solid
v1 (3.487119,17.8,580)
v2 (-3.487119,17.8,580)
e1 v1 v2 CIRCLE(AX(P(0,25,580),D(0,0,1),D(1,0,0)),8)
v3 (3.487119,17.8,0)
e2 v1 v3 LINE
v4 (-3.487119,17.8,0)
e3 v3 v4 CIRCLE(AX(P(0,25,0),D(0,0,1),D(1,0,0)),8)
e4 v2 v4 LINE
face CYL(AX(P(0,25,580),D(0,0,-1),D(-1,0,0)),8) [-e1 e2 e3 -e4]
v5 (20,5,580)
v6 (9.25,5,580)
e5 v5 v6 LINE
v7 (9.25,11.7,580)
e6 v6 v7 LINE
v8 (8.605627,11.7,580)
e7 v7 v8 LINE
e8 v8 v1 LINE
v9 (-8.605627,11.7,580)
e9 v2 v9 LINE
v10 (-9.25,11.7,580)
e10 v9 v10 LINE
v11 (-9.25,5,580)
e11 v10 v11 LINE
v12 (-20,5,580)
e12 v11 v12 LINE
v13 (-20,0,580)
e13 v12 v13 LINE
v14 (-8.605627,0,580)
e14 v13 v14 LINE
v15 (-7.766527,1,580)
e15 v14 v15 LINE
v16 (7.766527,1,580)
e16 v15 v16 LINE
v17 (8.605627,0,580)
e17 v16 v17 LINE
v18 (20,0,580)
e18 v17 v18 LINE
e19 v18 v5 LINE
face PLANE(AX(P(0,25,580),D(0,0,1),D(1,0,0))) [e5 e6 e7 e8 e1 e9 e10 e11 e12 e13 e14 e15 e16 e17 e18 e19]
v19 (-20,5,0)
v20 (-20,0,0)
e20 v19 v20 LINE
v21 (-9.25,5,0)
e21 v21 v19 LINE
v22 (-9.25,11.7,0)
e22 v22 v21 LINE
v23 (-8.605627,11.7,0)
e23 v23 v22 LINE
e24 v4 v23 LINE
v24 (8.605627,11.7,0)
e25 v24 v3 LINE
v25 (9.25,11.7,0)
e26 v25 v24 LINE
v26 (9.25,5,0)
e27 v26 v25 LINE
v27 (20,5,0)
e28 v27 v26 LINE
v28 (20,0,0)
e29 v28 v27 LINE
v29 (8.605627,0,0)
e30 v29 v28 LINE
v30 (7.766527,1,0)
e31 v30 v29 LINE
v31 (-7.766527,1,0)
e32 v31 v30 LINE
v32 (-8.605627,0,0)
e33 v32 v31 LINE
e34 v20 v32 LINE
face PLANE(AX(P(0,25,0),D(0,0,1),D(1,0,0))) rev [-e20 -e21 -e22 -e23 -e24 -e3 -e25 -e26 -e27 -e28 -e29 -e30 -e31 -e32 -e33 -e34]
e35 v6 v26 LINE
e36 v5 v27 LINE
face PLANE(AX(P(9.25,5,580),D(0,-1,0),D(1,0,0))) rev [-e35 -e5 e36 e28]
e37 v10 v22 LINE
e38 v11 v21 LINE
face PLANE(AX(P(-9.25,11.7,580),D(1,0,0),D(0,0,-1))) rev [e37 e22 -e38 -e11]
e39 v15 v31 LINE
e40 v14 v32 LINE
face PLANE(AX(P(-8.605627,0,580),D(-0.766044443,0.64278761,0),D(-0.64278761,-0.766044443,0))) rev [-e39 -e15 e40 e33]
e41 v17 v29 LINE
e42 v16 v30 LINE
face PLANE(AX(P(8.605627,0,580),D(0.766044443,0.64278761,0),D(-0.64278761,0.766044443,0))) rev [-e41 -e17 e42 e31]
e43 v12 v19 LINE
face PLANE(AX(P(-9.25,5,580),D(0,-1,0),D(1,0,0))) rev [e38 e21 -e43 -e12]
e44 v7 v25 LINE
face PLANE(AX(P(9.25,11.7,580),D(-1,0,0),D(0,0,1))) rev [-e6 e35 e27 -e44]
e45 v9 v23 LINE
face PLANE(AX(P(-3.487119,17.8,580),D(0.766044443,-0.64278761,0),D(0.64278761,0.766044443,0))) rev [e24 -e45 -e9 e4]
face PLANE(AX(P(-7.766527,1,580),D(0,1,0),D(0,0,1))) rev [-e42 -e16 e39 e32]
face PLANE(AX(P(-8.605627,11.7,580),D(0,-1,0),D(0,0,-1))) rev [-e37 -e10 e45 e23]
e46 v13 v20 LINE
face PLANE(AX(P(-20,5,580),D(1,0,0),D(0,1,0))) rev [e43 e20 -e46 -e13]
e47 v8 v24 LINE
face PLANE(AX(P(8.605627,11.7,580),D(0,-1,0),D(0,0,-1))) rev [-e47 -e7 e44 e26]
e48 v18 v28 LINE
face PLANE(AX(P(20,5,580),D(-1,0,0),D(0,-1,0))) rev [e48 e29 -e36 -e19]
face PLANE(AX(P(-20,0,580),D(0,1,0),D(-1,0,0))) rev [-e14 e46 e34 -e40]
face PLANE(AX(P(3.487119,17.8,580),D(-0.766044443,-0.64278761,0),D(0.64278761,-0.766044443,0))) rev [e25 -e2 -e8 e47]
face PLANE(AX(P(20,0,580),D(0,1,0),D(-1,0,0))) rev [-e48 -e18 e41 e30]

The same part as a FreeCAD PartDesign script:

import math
import FreeCAD as App
import Part
import Sketcher
Q = App.Units.Quantity

doc = App.newDocument("Part")
body = doc.addObject("PartDesign::Body", "Body")

sketch1 = body.newObject("Sketcher::SketchObject", "Sketch")
sketch1.AttachmentSupport = (doc.getObject("XY_Plane"), [""])
sketch1.MapMode = "FlatFace"
sketch1.addGeometry(Part.LineSegment(App.Vector(-3.5, 17.8, 0), App.Vector(-8.6, 11.7, 0)), False)
sketch1.addGeometry(Part.LineSegment(App.Vector(-8.6, 11.7, 0), App.Vector(-9.2, 11.7, 0)), False)
sketch1.addGeometry(Part.LineSegment(App.Vector(-9.2, 11.7, 0), App.Vector(-9.2, 5, 0)), False)
sketch1.addGeometry(Part.LineSegment(App.Vector(-9.2, 5, 0), App.Vector(-20, 5, 0)), False)
sketch1.addGeometry(Part.LineSegment(App.Vector(-20, 5, 0), App.Vector(-20, 0, 0)), False)
sketch1.addGeometry(Part.LineSegment(App.Vector(-20, 0, 0), App.Vector(-8.6, 0, 0)), False)
sketch1.addGeometry(Part.LineSegment(App.Vector(-8.6, 0, 0), App.Vector(-7.8, 1, 0)), False)
sketch1.addGeometry(Part.LineSegment(App.Vector(-7.8, 1, 0), App.Vector(7.8, 1, 0)), False)
sketch1.addGeometry(Part.LineSegment(App.Vector(7.8, 1, 0), App.Vector(8.6, 0, 0)), False)
sketch1.addGeometry(Part.LineSegment(App.Vector(8.6, 0, 0), App.Vector(20, 0, 0)), False)
sketch1.addGeometry(Part.LineSegment(App.Vector(20, 0, 0), App.Vector(20, 5, 0)), False)
sketch1.addGeometry(Part.LineSegment(App.Vector(20, 5, 0), App.Vector(9.2, 5, 0)), False)
sketch1.addGeometry(Part.LineSegment(App.Vector(9.2, 5, 0), App.Vector(9.2, 11.7, 0)), False)
sketch1.addGeometry(Part.LineSegment(App.Vector(9.2, 11.7, 0), App.Vector(8.6, 11.7, 0)), False)
sketch1.addGeometry(Part.LineSegment(App.Vector(8.6, 11.7, 0), App.Vector(3.5, 17.8, 0)), False)
sketch1.addGeometry(Part.ArcOfCircle(Part.Circle(App.Vector(0, 25, 0), App.Vector(0, 0, 1), 8), math.radians(-64), math.radians(244)), False)
sketch1.addConstraint(Sketcher.Constraint("Coincident", 0, 2, 1, 1))
sketch1.addConstraint(Sketcher.Constraint("Coincident", 1, 2, 2, 1))
sketch1.addConstraint(Sketcher.Constraint("Coincident", 2, 2, 3, 1))
sketch1.addConstraint(Sketcher.Constraint("Coincident", 3, 2, 4, 1))
sketch1.addConstraint(Sketcher.Constraint("Coincident", 4, 2, 5, 1))
sketch1.addConstraint(Sketcher.Constraint("Coincident", 5, 2, 6, 1))
sketch1.addConstraint(Sketcher.Constraint("Coincident", 6, 2, 7, 1))
sketch1.addConstraint(Sketcher.Constraint("Coincident", 7, 2, 8, 1))
sketch1.addConstraint(Sketcher.Constraint("Coincident", 8, 2, 9, 1))
sketch1.addConstraint(Sketcher.Constraint("Coincident", 9, 2, 10, 1))
sketch1.addConstraint(Sketcher.Constraint("Coincident", 10, 2, 11, 1))
sketch1.addConstraint(Sketcher.Constraint("Coincident", 11, 2, 12, 1))
sketch1.addConstraint(Sketcher.Constraint("Coincident", 12, 2, 13, 1))
sketch1.addConstraint(Sketcher.Constraint("Coincident", 13, 2, 14, 1))
sketch1.addConstraint(Sketcher.Constraint("Coincident", 14, 2, 15, 1))
sketch1.addConstraint(Sketcher.Constraint("Coincident", 15, 2, 0, 1))
sketch1.addConstraint(Sketcher.Constraint("Horizontal", 1))
sketch1.addConstraint(Sketcher.Constraint("Vertical", 2))
sketch1.addConstraint(Sketcher.Constraint("Horizontal", 3))
sketch1.addConstraint(Sketcher.Constraint("Vertical", 4))
sketch1.addConstraint(Sketcher.Constraint("Horizontal", 5))
sketch1.addConstraint(Sketcher.Constraint("Horizontal", 7))
sketch1.addConstraint(Sketcher.Constraint("Horizontal", 9))
sketch1.addConstraint(Sketcher.Constraint("Vertical", 10))
sketch1.addConstraint(Sketcher.Constraint("Horizontal", 11))
sketch1.addConstraint(Sketcher.Constraint("Vertical", 12))
sketch1.addConstraint(Sketcher.Constraint("Horizontal", 13))
sketch1.addConstraint(Sketcher.Constraint("Symmetric", 5, 2, 8, 2, -1, 1))
sketch1.addConstraint(Sketcher.Constraint("Symmetric", 4, 2, 9, 2, -2))
sketch1.addConstraint(Sketcher.Constraint("Symmetric", 2, 2, 11, 2, -2))
sketch1.addConstraint(Sketcher.Constraint("Symmetric", 0, 2, 13, 2, -2))
sketch1.addConstraint(Sketcher.Constraint("Symmetric", 14, 2, 15, 2, -2))
sketch1.addConstraint(Sketcher.Constraint("Parallel", 0, 6))
sketch1.addConstraint(Sketcher.Constraint("Parallel", 8, 14))
sketch1.addConstraint(Sketcher.Constraint("Vertical", 0, 2, 5, 2))
sketch1.addConstraint(Sketcher.Constraint("Radius", 15, 8.0))
sketch1.addConstraint(Sketcher.Constraint("DistanceY", 4, 2, 4, 1, 5.0))
sketch1.addConstraint(Sketcher.Constraint("Angle", 0, Q("-130 deg")))
sketch1.addConstraint(Sketcher.Constraint("DistanceY", 2, 2, 2, 1, 6.7))
sketch1.addConstraint(Sketcher.Constraint("DistanceY", -1, 1, 15, 3, 25.0))
sketch1.addConstraint(Sketcher.Constraint("DistanceX", 3, 2, -1, 1, 20.0))
sketch1.addConstraint(Sketcher.Constraint("DistanceY", -1, 1, 6, 2, 1.0))
sketch1.addConstraint(Sketcher.Constraint("DistanceX", 3, 2, 3, 1, 10.75))
sketch1.addConstraint(Sketcher.Constraint("DistanceY", -1, 1, 14, 2, 17.8))
pad1 = body.newObject("PartDesign::Pad", "Pad")
pad1.Profile = sketch1
pad1.Length = 580

doc.recompute()
